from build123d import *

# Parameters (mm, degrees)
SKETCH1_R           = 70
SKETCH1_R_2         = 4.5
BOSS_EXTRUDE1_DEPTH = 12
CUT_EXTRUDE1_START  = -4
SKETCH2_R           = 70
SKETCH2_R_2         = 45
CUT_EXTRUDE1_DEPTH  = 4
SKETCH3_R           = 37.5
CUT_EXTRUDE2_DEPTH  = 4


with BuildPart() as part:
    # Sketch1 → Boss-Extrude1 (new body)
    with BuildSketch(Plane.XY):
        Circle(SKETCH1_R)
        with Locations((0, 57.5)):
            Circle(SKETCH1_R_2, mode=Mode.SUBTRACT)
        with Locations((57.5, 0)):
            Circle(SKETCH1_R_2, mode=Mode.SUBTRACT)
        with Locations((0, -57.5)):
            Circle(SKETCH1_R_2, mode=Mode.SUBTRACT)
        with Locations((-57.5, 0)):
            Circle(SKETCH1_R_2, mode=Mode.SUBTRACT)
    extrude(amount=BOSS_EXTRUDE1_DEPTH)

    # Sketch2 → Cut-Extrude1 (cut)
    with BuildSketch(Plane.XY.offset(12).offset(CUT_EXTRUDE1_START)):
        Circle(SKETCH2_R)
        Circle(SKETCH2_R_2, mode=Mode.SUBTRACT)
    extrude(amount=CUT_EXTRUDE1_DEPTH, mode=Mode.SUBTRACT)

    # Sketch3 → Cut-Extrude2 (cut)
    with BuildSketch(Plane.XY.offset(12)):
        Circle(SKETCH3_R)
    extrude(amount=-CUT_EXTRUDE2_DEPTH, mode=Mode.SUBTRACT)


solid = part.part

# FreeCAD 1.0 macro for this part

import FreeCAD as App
import Part
import Sketcher

V = App.Vector

doc = App.newDocument("Part")
params = doc.addObject("Spreadsheet::Sheet", "Params")
for row, (alias, value) in enumerate([
    ("sketch1_diameter", "140 mm"),
    ("sketch1_diameter2", "9 mm"),
    ("pad1_length", "12 mm"),
    ("sketch2_diameter", "140 mm"),
    ("sketch2_diameter2", "90 mm"),
    ("pocket1_length", "4 mm"),
    ("sketch3_diameter", "75 mm"),
    ("pocket2_length", "4 mm"),
], start=1):
    params.set(f"A{row}", alias)
    params.set(f"B{row}", "=" + value)
    params.setAlias(f"B{row}", alias)

body = doc.addObject("PartDesign::Body", "Body")

# Sketch on XY plane
sketch1 = body.newObject("Sketcher::SketchObject", "Sketch")
sketch1.AttachmentSupport = (doc.getObject("XY_Plane"), [""])
sketch1.MapMode = "FlatFace"
sketch1.addGeometry([
    Part.Circle(V(0, 0, 0), V(0, 0, 1), 70),  # 0
    Part.Circle(V(0, -57.5, 0), V(0, 0, 1), 4.5),  # 1
    Part.Circle(V(-57.5, 0, 0), V(0, 0, 1), 4.5),  # 2
    Part.Circle(V(57.5, 0, 0), V(0, 0, 1), 4.5),  # 3
    Part.Circle(V(0, 57.5, 0), V(0, 0, 1), 4.5),  # 4
], False)
sketch1.addConstraint([
    Sketcher.Constraint("Coincident", 0, 3, -1, 1),
    Sketcher.Constraint("Equal", 1, 2),
    Sketcher.Constraint("Equal", 2, 3),
    Sketcher.Constraint("Equal", 3, 4),
    Sketcher.Constraint("Symmetric", 2, 3, 3, 3, -1, 1),
    Sketcher.Constraint("Symmetric", 1, 3, 4, 3, -1, 1),
    Sketcher.Constraint("PointOnObject", 1, 3, -2),
    Sketcher.Constraint("PointOnObject", 2, 3, -1),
    Sketcher.Constraint("Diameter", 0, 140.0),
    Sketcher.Constraint("Diameter", 1, 9.0),
    Sketcher.Constraint("DistanceX", 2, 3, 3, 3, 115.0),
    Sketcher.Constraint("DistanceY", 1, 3, 4, 3, 115.0),
])
sketch1.setExpression("Constraints[8]", "Params.sketch1_diameter")
sketch1.setExpression("Constraints[9]", "Params.sketch1_diameter2")
pad1 = body.newObject("PartDesign::Pad", "Pad")
pad1.Profile = sketch1
pad1.setExpression("Length", "Params.pad1_length")

# Sketch on XY plane
sketch2 = body.newObject("Sketcher::SketchObject", "Sketch001")
sketch2.AttachmentSupport = (doc.getObject("XY_Plane"), [""])
sketch2.MapMode = "FlatFace"
sketch2.AttachmentOffset = App.Placement(V(0, 0, 8), App.Rotation())
sketch2.addGeometry([
    Part.Circle(V(0, 0, 0), V(0, 0, 1), 70),
    Part.Circle(V(0, 0, 0), V(0, 0, 1), 45),
], False)
sketch2.addConstraint([
    Sketcher.Constraint("Coincident", 0, 3, -1, 1),
    Sketcher.Constraint("Coincident", 1, 3, -1, 1),
    Sketcher.Constraint("Diameter", 0, 140.0),
    Sketcher.Constraint("Diameter", 1, 90.0),
])
sketch2.setExpression("Constraints[2]", "Params.sketch2_diameter")
sketch2.setExpression("Constraints[3]", "Params.sketch2_diameter2")
pocket1 = body.newObject("PartDesign::Pocket", "Pocket")
pocket1.Profile = sketch2
pocket1.setExpression("Length", "Params.pocket1_length")
pocket1.Reversed = True

# Sketch on XY plane
sketch3 = body.newObject("Sketcher::SketchObject", "Sketch002")
sketch3.AttachmentSupport = (doc.getObject("XY_Plane"), [""])
sketch3.MapMode = "FlatFace"
sketch3.AttachmentOffset = App.Placement(V(0, 0, 12), App.Rotation())
sketch3.addGeometry(Part.Circle(V(0, 0, 0), V(0, 0, 1), 37.5), False)
sketch3.addConstraint([
    Sketcher.Constraint("Coincident", 0, 3, -1, 1),
    Sketcher.Constraint("Diameter", 0, 75.0),
])
sketch3.setExpression("Constraints[1]", "Params.sketch3_diameter")
pocket2 = body.newObject("PartDesign::Pocket", "Pocket001")
pocket2.Profile = sketch3
pocket2.setExpression("Length", "Params.pocket2_length")

doc.recompute()
